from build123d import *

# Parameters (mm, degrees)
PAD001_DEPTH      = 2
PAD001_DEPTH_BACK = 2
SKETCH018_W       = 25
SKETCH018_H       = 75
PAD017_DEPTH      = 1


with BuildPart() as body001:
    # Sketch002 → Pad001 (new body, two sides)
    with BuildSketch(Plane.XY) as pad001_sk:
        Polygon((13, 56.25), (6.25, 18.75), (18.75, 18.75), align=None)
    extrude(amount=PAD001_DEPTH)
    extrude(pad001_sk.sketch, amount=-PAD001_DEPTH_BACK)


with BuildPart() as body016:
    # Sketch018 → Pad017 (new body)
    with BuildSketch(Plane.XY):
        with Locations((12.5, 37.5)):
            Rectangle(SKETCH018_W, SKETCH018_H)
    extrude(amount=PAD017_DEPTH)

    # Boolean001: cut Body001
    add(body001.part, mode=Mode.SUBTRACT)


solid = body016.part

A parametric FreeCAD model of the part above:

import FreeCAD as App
import Part
import Sketcher

V = App.Vector

doc = App.newDocument("Part")
body = doc.addObject("PartDesign::Body", "Body")

# Sketch on XY plane
sketch1 = doc.addObject("Sketcher::SketchObject", "Sketch")
body.addObject(sketch1)
sketch1.AttachmentSupport = (doc.XY_Plane, [""])
sketch1.MapMode = "FlatFace"
sketch1.addGeometry(Part.LineSegment(V(13, 56.25, 0), V(6.25, 18.75, 0)), False)
sketch1.addGeometry(Part.LineSegment(V(6.25, 18.75, 0), V(18.75, 18.75, 0)), False)
sketch1.addGeometry(Part.LineSegment(V(18.75, 18.75, 0), V(13, 56.25, 0)), False)
sketch1.addConstraint(Sketcher.Constraint("Coincident", 0, 2, 1, 1))
sketch1.addConstraint(Sketcher.Constraint("Coincident", 1, 2, 2, 1))
sketch1.addConstraint(Sketcher.Constraint("Coincident", 2, 2, 0, 1))
sketch1.addConstraint(Sketcher.Constraint("Horizontal", 1))
sketch1.addConstraint(Sketcher.Constraint("DistanceX", 1, 1, 1, 2, 12.5))
sketch1.addConstraint(Sketcher.Constraint("DistanceX", -1, 1, 2, 2, 13.0))
sketch1.addConstraint(Sketcher.Constraint("DistanceY", 1, 2, 2, 2, 37.5))
sketch1.addConstraint(Sketcher.Constraint("DistanceX", -1, 1, 0, 2, 6.25))
sketch1.addConstraint(Sketcher.Constraint("DistanceY", -1, 1, 0, 2, 18.75))
pad1 = doc.addObject("PartDesign::Pad", "Pad")
body.addObject(pad1)
pad1.Profile = sketch1
pad1.Type = "TwoLengths"
pad1.Length = 2
pad1.Length2 = 2
body2 = doc.addObject("PartDesign::Body", "Body001")

# Sketch on XY plane
sketch2 = doc.addObject("Sketcher::SketchObject", "Sketch001")
body2.addObject(sketch2)
sketch2.AttachmentSupport = (doc.getObject("XY_Plane001"), [""])
sketch2.MapMode = "FlatFace"
sketch2.addGeometry(Part.LineSegment(V(0, 75, 0), V(0, 0, 0)), False)
sketch2.addGeometry(Part.LineSegment(V(0, 0, 0), V(25, 0, 0)), False)
sketch2.addGeometry(Part.LineSegment(V(25, 0, 0), V(25, 75, 0)), False)
sketch2.addGeometry(Part.LineSegment(V(25, 75, 0), V(0, 75, 0)), False)
sketch2.addConstraint(Sketcher.Constraint("Coincident", 0, 2, 1, 1))
sketch2.addConstraint(Sketcher.Constraint("Coincident", 1, 2, 2, 1))
sketch2.addConstraint(Sketcher.Constraint("Coincident", 2, 2, 3, 1))
sketch2.addConstraint(Sketcher.Constraint("Coincident", 3, 2, 0, 1))
sketch2.addConstraint(Sketcher.Constraint("Vertical", 0))
sketch2.addConstraint(Sketcher.Constraint("Horizontal", 1))
sketch2.addConstraint(Sketcher.Constraint("Vertical", 2))
sketch2.addConstraint(Sketcher.Constraint("Horizontal", 3))
sketch2.addConstraint(Sketcher.Constraint("Coincident", 0, 2, -1, 1))
sketch2.addConstraint(Sketcher.Constraint("DistanceX", 1, 1, 1, 2, 25.0))
sketch2.addConstraint(Sketcher.Constraint("DistanceY", 0, 2, 0, 1, 75.0))
pad2 = doc.addObject("PartDesign::Pad", "Pad001")
body2.addObject(pad2)
pad2.Profile = sketch2
pad2.Length = 1
doc.recompute()

boolean = doc.addObject("PartDesign::Boolean", "Boolean")
body2.addObject(boolean)
boolean.Type = "Cut"
boolean.addObjects([body])

doc.recompute()
